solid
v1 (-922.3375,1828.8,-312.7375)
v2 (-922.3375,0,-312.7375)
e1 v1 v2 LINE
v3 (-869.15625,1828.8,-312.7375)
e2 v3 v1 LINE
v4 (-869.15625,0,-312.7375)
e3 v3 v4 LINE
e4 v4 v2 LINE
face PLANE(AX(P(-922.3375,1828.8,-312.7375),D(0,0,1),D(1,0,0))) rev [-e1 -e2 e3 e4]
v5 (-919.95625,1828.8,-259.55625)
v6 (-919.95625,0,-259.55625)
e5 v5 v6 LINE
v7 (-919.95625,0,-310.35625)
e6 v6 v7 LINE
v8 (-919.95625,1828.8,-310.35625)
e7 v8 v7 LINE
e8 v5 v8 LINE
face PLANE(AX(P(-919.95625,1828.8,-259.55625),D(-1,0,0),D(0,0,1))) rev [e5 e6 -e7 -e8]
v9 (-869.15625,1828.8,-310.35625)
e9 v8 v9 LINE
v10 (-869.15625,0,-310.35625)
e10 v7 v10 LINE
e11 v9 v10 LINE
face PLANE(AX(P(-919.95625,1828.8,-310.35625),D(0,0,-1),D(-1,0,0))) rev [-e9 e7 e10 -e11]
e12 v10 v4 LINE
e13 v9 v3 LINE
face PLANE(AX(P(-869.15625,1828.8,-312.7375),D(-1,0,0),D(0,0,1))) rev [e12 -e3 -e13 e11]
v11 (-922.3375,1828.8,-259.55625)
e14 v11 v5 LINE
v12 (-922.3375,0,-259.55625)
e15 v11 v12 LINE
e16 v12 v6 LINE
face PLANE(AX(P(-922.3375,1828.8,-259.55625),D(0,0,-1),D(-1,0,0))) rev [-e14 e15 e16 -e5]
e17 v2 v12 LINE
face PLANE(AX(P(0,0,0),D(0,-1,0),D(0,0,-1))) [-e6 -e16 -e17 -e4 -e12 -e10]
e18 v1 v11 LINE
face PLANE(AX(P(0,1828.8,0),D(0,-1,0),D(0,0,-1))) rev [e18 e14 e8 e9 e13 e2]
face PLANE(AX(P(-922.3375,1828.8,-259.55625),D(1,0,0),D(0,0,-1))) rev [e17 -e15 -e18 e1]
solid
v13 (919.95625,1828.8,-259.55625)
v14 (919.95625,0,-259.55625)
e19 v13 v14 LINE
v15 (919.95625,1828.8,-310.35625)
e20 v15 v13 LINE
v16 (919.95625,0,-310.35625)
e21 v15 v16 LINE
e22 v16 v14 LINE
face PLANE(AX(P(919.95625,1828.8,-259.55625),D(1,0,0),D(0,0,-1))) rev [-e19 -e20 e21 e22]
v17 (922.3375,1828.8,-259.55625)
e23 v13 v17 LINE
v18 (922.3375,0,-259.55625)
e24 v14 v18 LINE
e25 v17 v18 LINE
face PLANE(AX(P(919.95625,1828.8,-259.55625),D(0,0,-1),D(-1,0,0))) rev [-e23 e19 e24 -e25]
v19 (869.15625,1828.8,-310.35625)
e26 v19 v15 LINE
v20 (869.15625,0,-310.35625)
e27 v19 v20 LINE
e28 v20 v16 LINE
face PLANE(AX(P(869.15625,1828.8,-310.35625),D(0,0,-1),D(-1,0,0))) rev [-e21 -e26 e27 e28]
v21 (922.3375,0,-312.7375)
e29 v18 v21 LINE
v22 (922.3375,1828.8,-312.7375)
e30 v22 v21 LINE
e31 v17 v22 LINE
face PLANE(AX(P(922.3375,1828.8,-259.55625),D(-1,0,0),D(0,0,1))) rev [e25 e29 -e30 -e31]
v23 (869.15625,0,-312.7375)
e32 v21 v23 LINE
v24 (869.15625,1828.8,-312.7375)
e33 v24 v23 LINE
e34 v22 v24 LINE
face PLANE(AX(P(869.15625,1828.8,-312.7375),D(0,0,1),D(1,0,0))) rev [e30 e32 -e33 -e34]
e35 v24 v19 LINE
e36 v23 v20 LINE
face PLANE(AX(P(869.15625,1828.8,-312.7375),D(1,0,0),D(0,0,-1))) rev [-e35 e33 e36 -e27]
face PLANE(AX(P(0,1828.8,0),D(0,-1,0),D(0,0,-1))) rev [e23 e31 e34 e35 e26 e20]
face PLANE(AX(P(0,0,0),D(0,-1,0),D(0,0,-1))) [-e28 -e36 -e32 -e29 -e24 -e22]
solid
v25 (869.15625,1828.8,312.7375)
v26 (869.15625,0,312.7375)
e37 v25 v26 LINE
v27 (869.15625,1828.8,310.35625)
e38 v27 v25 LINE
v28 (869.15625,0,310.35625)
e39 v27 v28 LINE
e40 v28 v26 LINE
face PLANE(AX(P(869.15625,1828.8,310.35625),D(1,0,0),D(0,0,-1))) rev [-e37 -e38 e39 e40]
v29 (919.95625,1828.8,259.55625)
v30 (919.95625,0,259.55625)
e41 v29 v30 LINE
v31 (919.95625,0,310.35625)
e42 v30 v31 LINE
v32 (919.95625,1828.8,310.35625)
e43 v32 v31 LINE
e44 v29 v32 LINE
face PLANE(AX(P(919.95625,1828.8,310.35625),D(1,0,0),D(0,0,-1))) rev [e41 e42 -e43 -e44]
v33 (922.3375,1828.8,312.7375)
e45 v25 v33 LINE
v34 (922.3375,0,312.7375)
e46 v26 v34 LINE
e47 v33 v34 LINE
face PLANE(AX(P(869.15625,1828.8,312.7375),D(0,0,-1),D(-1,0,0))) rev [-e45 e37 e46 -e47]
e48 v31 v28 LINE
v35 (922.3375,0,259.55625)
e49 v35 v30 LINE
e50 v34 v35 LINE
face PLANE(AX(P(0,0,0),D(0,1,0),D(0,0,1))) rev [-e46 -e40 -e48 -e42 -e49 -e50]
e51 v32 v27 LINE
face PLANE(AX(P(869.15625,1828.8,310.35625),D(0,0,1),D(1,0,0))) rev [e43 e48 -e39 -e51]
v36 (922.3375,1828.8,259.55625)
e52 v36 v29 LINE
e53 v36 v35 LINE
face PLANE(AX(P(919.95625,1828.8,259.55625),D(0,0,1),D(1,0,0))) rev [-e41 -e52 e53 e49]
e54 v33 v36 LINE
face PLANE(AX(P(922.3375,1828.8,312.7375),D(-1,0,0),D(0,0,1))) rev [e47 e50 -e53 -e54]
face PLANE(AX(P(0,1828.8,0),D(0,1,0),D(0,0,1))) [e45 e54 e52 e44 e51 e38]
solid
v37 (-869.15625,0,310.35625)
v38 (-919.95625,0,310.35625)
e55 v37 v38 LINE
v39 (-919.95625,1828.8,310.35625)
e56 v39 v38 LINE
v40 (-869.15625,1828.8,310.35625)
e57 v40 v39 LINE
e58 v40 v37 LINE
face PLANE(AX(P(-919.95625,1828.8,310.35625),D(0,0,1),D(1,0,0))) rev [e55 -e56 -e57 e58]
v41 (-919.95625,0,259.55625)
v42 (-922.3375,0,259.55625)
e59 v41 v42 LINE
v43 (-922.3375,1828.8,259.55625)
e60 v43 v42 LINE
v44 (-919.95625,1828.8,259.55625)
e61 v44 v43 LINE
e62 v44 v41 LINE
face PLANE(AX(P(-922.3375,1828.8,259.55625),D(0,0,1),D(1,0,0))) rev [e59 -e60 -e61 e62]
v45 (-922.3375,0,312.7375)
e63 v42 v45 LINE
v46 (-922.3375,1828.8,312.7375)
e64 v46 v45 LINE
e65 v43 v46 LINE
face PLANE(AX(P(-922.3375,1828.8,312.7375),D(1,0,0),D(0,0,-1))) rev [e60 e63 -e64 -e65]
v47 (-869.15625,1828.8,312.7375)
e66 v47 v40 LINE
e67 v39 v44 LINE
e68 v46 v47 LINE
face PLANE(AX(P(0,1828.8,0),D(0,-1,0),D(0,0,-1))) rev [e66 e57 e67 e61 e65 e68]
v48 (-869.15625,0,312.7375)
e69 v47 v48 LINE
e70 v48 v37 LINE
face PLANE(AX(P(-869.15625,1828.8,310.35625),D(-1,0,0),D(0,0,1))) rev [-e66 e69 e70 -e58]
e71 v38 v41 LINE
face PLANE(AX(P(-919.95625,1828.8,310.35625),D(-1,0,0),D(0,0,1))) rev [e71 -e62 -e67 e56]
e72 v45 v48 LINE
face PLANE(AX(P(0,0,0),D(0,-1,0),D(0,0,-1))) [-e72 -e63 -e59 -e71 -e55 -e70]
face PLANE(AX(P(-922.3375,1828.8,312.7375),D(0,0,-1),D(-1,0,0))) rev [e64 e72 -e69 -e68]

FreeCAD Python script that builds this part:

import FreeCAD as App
import Part
import Sketcher
Q = App.Units.Quantity

doc = App.newDocument("Part")
params = doc.addObject("Spreadsheet::Sheet", "Params")
for row, (alias, value) in enumerate([
    ("sketch1_width", "2 in"),
    ("sketch1_width2", "2.09375 in"),
    ("pad1_length", "72 in"),
    ("sketch2_width", "2 in"),
    ("sketch2_width2", "2.09375 in"),
    ("pad2_length", "72 in"),
    ("sketch3_width", "2 in"),
    ("sketch3_width2", "0.09375 in"),
    ("pad3_length", "72 in"),
    ("sketch4_width", "2 in"),
    ("sketch4_width2", "0.09375 in"),
    ("pad4_length", "72 in"),
], start=1):
    params.set(f"A{row}", alias)
    params.set(f"B{row}", "=" + value)
    params.setAlias(f"B{row}", alias)

body = doc.addObject("PartDesign::Body", "Body")

# Sketch on XZ plane
sketch1 = body.newObject("Sketcher::SketchObject", "Sketch")
sketch1.AttachmentSupport = (doc.getObject("XZ_Plane"), [""])
sketch1.MapMode = "FlatFace"
sketch1.addGeometry(Part.LineSegment(App.Vector(-922.3, 312.7, 0), App.Vector(-869.2, 312.7, 0)), False)
sketch1.addGeometry(Part.LineSegment(App.Vector(-869.2, 312.7, 0), App.Vector(-869.2, 310.4, 0)), False)
sketch1.addGeometry(Part.LineSegment(App.Vector(-869.2, 310.4, 0), App.Vector(-920, 310.4, 0)), False)
sketch1.addGeometry(Part.LineSegment(App.Vector(-920, 310.4, 0), App.Vector(-920, 259.6, 0)), False)
sketch1.addGeometry(Part.LineSegment(App.Vector(-920, 259.6, 0), App.Vector(-922.3, 259.6, 0)), False)
sketch1.addGeometry(Part.LineSegment(App.Vector(-922.3, 259.6, 0), App.Vector(-922.3, 312.7, 0)), False)
sketch1.addConstraint(Sketcher.Constraint("Coincident", 0, 2, 1, 1))
sketch1.addConstraint(Sketcher.Constraint("Coincident", 1, 2, 2, 1))
sketch1.addConstraint(Sketcher.Constraint("Coincident", 2, 2, 3, 1))
sketch1.addConstraint(Sketcher.Constraint("Coincident", 3, 2, 4, 1))
sketch1.addConstraint(Sketcher.Constraint("Coincident", 4, 2, 5, 1))
sketch1.addConstraint(Sketcher.Constraint("Coincident", 5, 2, 0, 1))
sketch1.addConstraint(Sketcher.Constraint("Horizontal", 0))
sketch1.addConstraint(Sketcher.Constraint("Vertical", 1))
sketch1.addConstraint(Sketcher.Constraint("Horizontal", 2))
sketch1.addConstraint(Sketcher.Constraint("Vertical", 3))
sketch1.addConstraint(Sketcher.Constraint("Horizontal", 4))
sketch1.addConstraint(Sketcher.Constraint("Vertical", 5))
sketch1.addConstraint(Sketcher.Constraint("Equal", 4, 1))
sketch1.addConstraint(Sketcher.Constraint("Equal", 2, 3))
sketch1.addConstraint(Sketcher.Constraint("DistanceX", 2, 2, 2, 1, Q("2 in")))
sketch1.addConstraint(Sketcher.Constraint("DistanceX", 0, 1, 0, 2, Q("2.09375 in")))
sketch1.addConstraint(Sketcher.Constraint("DistanceX", 0, 2, -1, 1, Q("34.21875 in")))
sketch1.addConstraint(Sketcher.Constraint("DistanceY", -1, 1, 0, 2, Q("12.3125 in")))
sketch1.setExpression("Constraints[14]", "Params.sketch1_width")
sketch1.setExpression("Constraints[15]", "Params.sketch1_width2")
pad1 = body.newObject("PartDesign::Pad", "Pad")
pad1.Profile = sketch1
pad1.setExpression("Length", "Params.pad1_length")
pad1.Reversed = True
body2 = doc.addObject("PartDesign::Body", "Body001")

# Sketch on XZ plane
sketch2 = body2.newObject("Sketcher::SketchObject", "Sketch001")
sketch2.AttachmentSupport = (doc.getObject("XZ_Plane001"), [""])
sketch2.MapMode = "FlatFace"
sketch2.addGeometry(Part.LineSegment(App.Vector(-869.2, -312.7, 0), App.Vector(-922.3, -312.7, 0)), False)
sketch2.addGeometry(Part.LineSegment(App.Vector(-922.3, -312.7, 0), App.Vector(-922.3, -259.6, 0)), False)
sketch2.addGeometry(Part.LineSegment(App.Vector(-922.3, -259.6, 0), App.Vector(-920, -259.6, 0)), False)
sketch2.addGeometry(Part.LineSegment(App.Vector(-920, -259.6, 0), App.Vector(-920, -310.4, 0)), False)
sketch2.addGeometry(Part.LineSegment(App.Vector(-920, -310.4, 0), App.Vector(-869.2, -310.4, 0)), False)
sketch2.addGeometry(Part.LineSegment(App.Vector(-869.2, -310.4, 0), App.Vector(-869.2, -312.7, 0)), False)
sketch2.addConstraint(Sketcher.Constraint("Coincident", 0, 2, 1, 1))
sketch2.addConstraint(Sketcher.Constraint("Coincident", 1, 2, 2, 1))
sketch2.addConstraint(Sketcher.Constraint("Coincident", 2, 2, 3, 1))
sketch2.addConstraint(Sketcher.Constraint("Coincident", 3, 2, 4, 1))
sketch2.addConstraint(Sketcher.Constraint("Coincident", 4, 2, 5, 1))
sketch2.addConstraint(Sketcher.Constraint("Coincident", 5, 2, 0, 1))
sketch2.addConstraint(Sketcher.Constraint("Horizontal", 0))
sketch2.addConstraint(Sketcher.Constraint("Vertical", 1))
sketch2.addConstraint(Sketcher.Constraint("Horizontal", 2))
sketch2.addConstraint(Sketcher.Constraint("Vertical", 3))
sketch2.addConstraint(Sketcher.Constraint("Horizontal", 4))
sketch2.addConstraint(Sketcher.Constraint("Vertical", 5))
sketch2.addConstraint(Sketcher.Constraint("Equal", 0, 1))
sketch2.addConstraint(Sketcher.Constraint("Equal", 4, 3))
sketch2.addConstraint(Sketcher.Constraint("DistanceX", 4, 1, 4, 2, Q("2 in")))
sketch2.addConstraint(Sketcher.Constraint("DistanceX", 0, 2, 0, 1, Q("2.09375 in")))
sketch2.addConstraint(Sketcher.Constraint("DistanceX", 0, 2, -1, 1, Q("36.3125 in")))
sketch2.addConstraint(Sketcher.Constraint("DistanceY", 0, 2, -1, 1, Q("12.3125 in")))
sketch2.setExpression("Constraints[14]", "Params.sketch2_width")
sketch2.setExpression("Constraints[15]", "Params.sketch2_width2")
pad2 = body2.newObject("PartDesign::Pad", "Pad001")
pad2.Profile = sketch2
pad2.setExpression("Length", "Params.pad2_length")
pad2.Reversed = True
body3 = doc.addObject("PartDesign::Body", "Body002")

# Sketch on XZ plane
sketch3 = body3.newObject("Sketcher::SketchObject", "Sketch002")
sketch3.AttachmentSupport = (doc.getObject("XZ_Plane002"), [""])
sketch3.MapMode = "FlatFace"
sketch3.addGeometry(Part.LineSegment(App.Vector(922.3, 312.7, 0), App.Vector(922.3, 259.6, 0)), False)
sketch3.addGeometry(Part.LineSegment(App.Vector(922.3, 259.6, 0), App.Vector(920, 259.6, 0)), False)
sketch3.addGeometry(Part.LineSegment(App.Vector(920, 259.6, 0), App.Vector(920, 310.4, 0)), False)
sketch3.addGeometry(Part.LineSegment(App.Vector(920, 310.4, 0), App.Vector(869.2, 310.4, 0)), False)
sketch3.addGeometry(Part.LineSegment(App.Vector(869.2, 310.4, 0), App.Vector(869.2, 312.7, 0)), False)
sketch3.addGeometry(Part.LineSegment(App.Vector(869.2, 312.7, 0), App.Vector(922.3, 312.7, 0)), False)
sketch3.addConstraint(Sketcher.Constraint("Coincident", 0, 2, 1, 1))
sketch3.addConstraint(Sketcher.Constraint("Coincident", 1, 2, 2, 1))
sketch3.addConstraint(Sketcher.Constraint("Coincident", 2, 2, 3, 1))
sketch3.addConstraint(Sketcher.Constraint("Coincident", 3, 2, 4, 1))
sketch3.addConstraint(Sketcher.Constraint("Coincident", 4, 2, 5, 1))
sketch3.addConstraint(Sketcher.Constraint("Coincident", 5, 2, 0, 1))
sketch3.addConstraint(Sketcher.Constraint("Vertical", 0))
sketch3.addConstraint(Sketcher.Constraint("Horizontal", 1))
sketch3.addConstraint(Sketcher.Constraint("Vertical", 2))
sketch3.addConstraint(Sketcher.Constraint("Horizontal", 3))
sketch3.addConstraint(Sketcher.Constraint("Vertical", 4))
sketch3.addConstraint(Sketcher.Constraint("Horizontal", 5))
sketch3.addConstraint(Sketcher.Constraint("Equal", 5, 0))
sketch3.addConstraint(Sketcher.Constraint("Equal", 3, 2))
sketch3.addConstraint(Sketcher.Constraint("DistanceX", 3, 2, 3, 1, Q("2 in")))
sketch3.addConstraint(Sketcher.Constraint("DistanceX", 1, 2, 1, 1, Q("0.09375 in")))
sketch3.addConstraint(Sketcher.Constraint("DistanceX", -1, 1, 0, 2, Q("36.3125 in")))
sketch3.addConstraint(Sketcher.Constraint("DistanceY", -1, 1, 0, 2, Q("10.21875 in")))
sketch3.setExpression("Constraints[14]", "Params.sketch3_width")
sketch3.setExpression("Constraints[15]", "Params.sketch3_width2")
pad3 = body3.newObject("PartDesign::Pad", "Pad002")
pad3.Profile = sketch3
pad3.setExpression("Length", "Params.pad3_length")
pad3.Reversed = True
body4 = doc.addObject("PartDesign::Body", "Body003")

# Sketch on XZ plane
sketch4 = body4.newObject("Sketcher::SketchObject", "Sketch003")
sketch4.AttachmentSupport = (doc.getObject("XZ_Plane003"), [""])
sketch4.MapMode = "FlatFace"
sketch4.addGeometry(Part.LineSegment(App.Vector(869.2, -312.7, 0), App.Vector(869.2, -310.4, 0)), False)
sketch4.addGeometry(Part.LineSegment(App.Vector(869.2, -310.4, 0), App.Vector(920, -310.4, 0)), False)
sketch4.addGeometry(Part.LineSegment(App.Vector(920, -310.4, 0), App.Vector(920, -259.6, 0)), False)
sketch4.addGeometry(Part.LineSegment(App.Vector(920, -259.6, 0), App.Vector(922.3, -259.6, 0)), False)
sketch4.addGeometry(Part.LineSegment(App.Vector(922.3, -259.6, 0), App.Vector(922.3, -312.7, 0)), False)
sketch4.addGeometry(Part.LineSegment(App.Vector(922.3, -312.7, 0), App.Vector(869.2, -312.7, 0)), False)
sketch4.addConstraint(Sketcher.Constraint("Coincident", 0, 2, 1, 1))
sketch4.addConstraint(Sketcher.Constraint("Coincident", 1, 2, 2, 1))
sketch4.addConstraint(Sketcher.Constraint("Coincident", 2, 2, 3, 1))
sketch4.addConstraint(Sketcher.Constraint("Coincident", 3, 2, 4, 1))
sketch4.addConstraint(Sketcher.Constraint("Coincident", 4, 2, 5, 1))
sketch4.addConstraint(Sketcher.Constraint("Coincident", 5, 2, 0, 1))
sketch4.addConstraint(Sketcher.Constraint("Vertical", 0))
sketch4.addConstraint(Sketcher.Constraint("Horizontal", 1))
sketch4.addConstraint(Sketcher.Constraint("Vertical", 2))
sketch4.addConstraint(Sketcher.Constraint("Horizontal", 3))
sketch4.addConstraint(Sketcher.Constraint("Vertical", 4))
sketch4.addConstraint(Sketcher.Constraint("Horizontal", 5))
sketch4.addConstraint(Sketcher.Constraint("Equal", 3, 0))
sketch4.addConstraint(Sketcher.Constraint("Equal", 1, 2))
sketch4.addConstraint(Sketcher.Constraint("DistanceX", 1, 1, 1, 2, Q("2 in")))
sketch4.addConstraint(Sketcher.Constraint("DistanceX", 3, 1, 3, 2, Q("0.09375 in")))
sketch4.addConstraint(Sketcher.Constraint("DistanceX", -1, 1, 0, 2, Q("34.21875 in")))
sketch4.addConstraint(Sketcher.Constraint("DistanceY", 0, 2, -1, 1, Q("12.21875 in")))
sketch4.setExpression("Constraints[14]", "Params.sketch4_width")
sketch4.setExpression("Constraints[15]", "Params.sketch4_width2")
pad4 = body4.newObject("PartDesign::Pad", "Pad003")
pad4.Profile = sketch4
pad4.setExpression("Length", "Params.pad4_length")
pad4.Reversed = True

doc.recompute()
